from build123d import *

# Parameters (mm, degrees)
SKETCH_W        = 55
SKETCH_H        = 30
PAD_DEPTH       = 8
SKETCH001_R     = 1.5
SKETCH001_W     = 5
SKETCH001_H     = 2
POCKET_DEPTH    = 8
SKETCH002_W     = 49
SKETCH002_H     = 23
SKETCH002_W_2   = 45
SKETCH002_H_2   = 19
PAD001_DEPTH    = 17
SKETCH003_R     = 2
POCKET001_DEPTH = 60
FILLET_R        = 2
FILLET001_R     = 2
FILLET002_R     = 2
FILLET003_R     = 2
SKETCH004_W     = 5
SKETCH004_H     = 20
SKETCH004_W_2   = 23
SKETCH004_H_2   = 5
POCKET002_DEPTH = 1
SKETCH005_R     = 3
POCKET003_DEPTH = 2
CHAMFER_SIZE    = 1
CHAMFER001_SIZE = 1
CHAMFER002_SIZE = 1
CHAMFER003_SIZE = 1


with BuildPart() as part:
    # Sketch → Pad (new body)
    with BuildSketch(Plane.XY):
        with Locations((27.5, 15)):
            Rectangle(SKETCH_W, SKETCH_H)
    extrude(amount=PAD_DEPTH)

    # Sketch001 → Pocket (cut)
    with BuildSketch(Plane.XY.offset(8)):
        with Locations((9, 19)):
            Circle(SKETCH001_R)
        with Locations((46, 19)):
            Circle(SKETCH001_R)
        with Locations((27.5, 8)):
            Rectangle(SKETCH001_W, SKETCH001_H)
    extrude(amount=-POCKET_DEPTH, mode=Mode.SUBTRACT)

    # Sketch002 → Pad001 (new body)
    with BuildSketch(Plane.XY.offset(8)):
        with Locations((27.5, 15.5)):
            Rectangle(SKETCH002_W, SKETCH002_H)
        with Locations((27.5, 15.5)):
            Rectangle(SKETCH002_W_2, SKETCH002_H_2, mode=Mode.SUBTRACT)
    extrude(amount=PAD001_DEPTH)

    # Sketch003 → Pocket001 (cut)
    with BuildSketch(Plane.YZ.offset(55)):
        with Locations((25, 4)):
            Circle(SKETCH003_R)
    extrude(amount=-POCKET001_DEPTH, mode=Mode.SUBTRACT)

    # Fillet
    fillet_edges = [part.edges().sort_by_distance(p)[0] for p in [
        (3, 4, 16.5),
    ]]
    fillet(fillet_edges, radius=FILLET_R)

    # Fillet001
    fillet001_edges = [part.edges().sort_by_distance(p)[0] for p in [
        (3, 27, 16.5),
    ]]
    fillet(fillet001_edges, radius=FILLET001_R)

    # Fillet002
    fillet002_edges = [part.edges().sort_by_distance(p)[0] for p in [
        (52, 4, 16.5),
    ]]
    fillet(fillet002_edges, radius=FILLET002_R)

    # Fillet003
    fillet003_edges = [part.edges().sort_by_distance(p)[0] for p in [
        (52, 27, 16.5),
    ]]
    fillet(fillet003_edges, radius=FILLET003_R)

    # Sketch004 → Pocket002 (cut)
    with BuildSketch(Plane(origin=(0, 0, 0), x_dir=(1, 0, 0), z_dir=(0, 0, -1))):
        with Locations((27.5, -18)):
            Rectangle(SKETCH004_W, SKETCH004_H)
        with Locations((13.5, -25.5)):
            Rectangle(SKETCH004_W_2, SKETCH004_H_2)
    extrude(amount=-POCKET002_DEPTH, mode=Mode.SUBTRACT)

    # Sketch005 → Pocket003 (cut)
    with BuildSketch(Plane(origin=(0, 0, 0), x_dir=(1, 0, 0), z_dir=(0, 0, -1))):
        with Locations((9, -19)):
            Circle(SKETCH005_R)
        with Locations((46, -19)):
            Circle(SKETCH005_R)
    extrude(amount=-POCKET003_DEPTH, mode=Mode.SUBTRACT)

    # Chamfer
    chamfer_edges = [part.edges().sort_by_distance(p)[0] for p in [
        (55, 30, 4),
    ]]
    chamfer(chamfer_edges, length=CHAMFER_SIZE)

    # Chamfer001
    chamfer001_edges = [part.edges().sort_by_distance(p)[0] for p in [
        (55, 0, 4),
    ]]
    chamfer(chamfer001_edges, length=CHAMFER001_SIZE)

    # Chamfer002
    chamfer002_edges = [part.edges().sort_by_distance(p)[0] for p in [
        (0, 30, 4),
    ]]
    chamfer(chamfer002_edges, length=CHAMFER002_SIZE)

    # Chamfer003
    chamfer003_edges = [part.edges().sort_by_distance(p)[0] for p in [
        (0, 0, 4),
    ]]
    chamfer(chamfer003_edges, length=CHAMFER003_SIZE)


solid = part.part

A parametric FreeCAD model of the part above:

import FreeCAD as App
import Part
import Sketcher


def edges_at(feature, points):
    """Names of the edges that pass closest to the given points."""
    edges = feature.Shape.Edges
    near = lambda p: min(range(len(edges)), key=lambda i: edges[i].distToShape(Part.Vertex(*p))[0])
    return sorted({f"Edge{near(p) + 1}" for p in points})

doc = App.newDocument("Part")
params = doc.addObject("Spreadsheet::Sheet", "Params")
for row, (alias, value) in enumerate([
    ("sketch1_width", "55 mm"),
    ("sketch1_height", "30 mm"),
    ("pad1_length", "8 mm"),
    ("sketch2_diameter", "3 mm"),
    ("sketch2_width", "5 mm"),
    ("sketch2_height", "2 mm"),
    ("pocket1_length", "8 mm"),
    ("sketch3_width", "49 mm"),
    ("sketch3_width2", "45 mm"),
    ("sketch3_height", "23 mm"),
    ("sketch3_height2", "19 mm"),
    ("pad2_length", "17 mm"),
    ("sketch4_diameter", "4 mm"),
    ("pocket2_length", "60 mm"),
    ("fillet_radius", "2 mm"),
    ("fillet2_radius", "2 mm"),
    ("fillet3_radius", "2 mm"),
    ("fillet4_radius", "2 mm"),
    ("sketch5_width", "23 mm"),
    ("sketch5_width2", "28 mm"),
    ("sketch5_height", "15 mm"),
    ("pocket3_length", "1 mm"),
    ("sketch6_diameter", "6 mm"),
    ("pocket4_length", "2 mm"),
    ("chamfer_size", "1 mm"),
    ("chamfer2_size", "1 mm"),
    ("chamfer3_size", "1 mm"),
    ("chamfer4_size", "1 mm"),
], start=1):
    params.set(f"A{row}", alias)
    params.set(f"B{row}", "=" + value)
    params.setAlias(f"B{row}", alias)

body = doc.addObject("PartDesign::Body", "Body")

# Sketch on XY plane
sketch1 = body.newObject("Sketcher::SketchObject", "Sketch")
sketch1.AttachmentSupport = (doc.getObject("XY_Plane"), [""])
sketch1.MapMode = "FlatFace"
sketch1.addGeometry([
    Part.LineSegment(App.Vector(0, 30, 0), App.Vector(0, 0, 0)),
    Part.LineSegment(App.Vector(0, 0, 0), App.Vector(55, 0, 0)),
    Part.LineSegment(App.Vector(55, 0, 0), App.Vector(55, 30, 0)),
    Part.LineSegment(App.Vector(55, 30, 0), App.Vector(0, 30, 0)),
], False)
sketch1.addConstraint([
    Sketcher.Constraint("Coincident", 0, 2, 1, 1),
    Sketcher.Constraint("Coincident", 1, 2, 2, 1),
    Sketcher.Constraint("Coincident", 2, 2, 3, 1),
    Sketcher.Constraint("Coincident", 3, 2, 0, 1),
    Sketcher.Constraint("Vertical", 0),
    Sketcher.Constraint("Horizontal", 1),
    Sketcher.Constraint("Vertical", 2),
    Sketcher.Constraint("Horizontal", 3),
    Sketcher.Constraint("Coincident", 0, 2, -1, 1),
    Sketcher.Constraint("DistanceX", 1, 1, 1, 2, 55.0),
    Sketcher.Constraint("DistanceY", 0, 2, 0, 1, 30.0),
])
sketch1.setExpression("Constraints[9]", "Params.sketch1_width")
sketch1.setExpression("Constraints[10]", "Params.sketch1_height")
pad1 = body.newObject("PartDesign::Pad", "Pad")
pad1.Profile = sketch1
pad1.setExpression("Length", "Params.pad1_length")

# Sketch on XY plane
sketch2 = body.newObject("Sketcher::SketchObject", "Sketch001")
sketch2.AttachmentSupport = (doc.getObject("XY_Plane"), [""])
sketch2.MapMode = "FlatFace"
sketch2.AttachmentOffset = App.Placement(App.Vector(0, 0, 8), App.Rotation())
sketch2.addGeometry([
    Part.Circle(App.Vector(9, 19, 0), App.Vector(0, 0, 1), 1.5),  # 0
    Part.Circle(App.Vector(46, 19, 0), App.Vector(0, 0, 1), 1.5),  # 1
    Part.LineSegment(App.Vector(25, 9, 0), App.Vector(25, 7, 0)),  # 2
    Part.LineSegment(App.Vector(25, 7, 0), App.Vector(30, 7, 0)),  # 3
    Part.LineSegment(App.Vector(30, 7, 0), App.Vector(30, 9, 0)),  # 4
    Part.LineSegment(App.Vector(30, 9, 0), App.Vector(25, 9, 0)),  # 5
], False)
sketch2.addConstraint([
    Sketcher.Constraint("Coincident", 2, 2, 3, 1),
    Sketcher.Constraint("Coincident", 3, 2, 4, 1),
    Sketcher.Constraint("Coincident", 4, 2, 5, 1),
    Sketcher.Constraint("Coincident", 5, 2, 2, 1),
    Sketcher.Constraint("Vertical", 2),
    Sketcher.Constraint("Horizontal", 3),
    Sketcher.Constraint("Vertical", 4),
    Sketcher.Constraint("Horizontal", 5),
    Sketcher.Constraint("Equal", 0, 1),
    Sketcher.Constraint("Horizontal", 0, 3, 1, 3),
    Sketcher.Constraint("Diameter", 0, 3.0),
    Sketcher.Constraint("DistanceX", 3, 1, 3, 2, 5.0),
    Sketcher.Constraint("DistanceY", 2, 2, 2, 1, 2.0),
    Sketcher.Constraint("DistanceX", -1, 1, 0, 3, 9.0),
    Sketcher.Constraint("DistanceY", -1, 1, 0, 3, 19.0),
    Sketcher.Constraint("DistanceX", -1, 1, 1, 3, 46.0),
    Sketcher.Constraint("DistanceX", -1, 1, 2, 2, 25.0),
    Sketcher.Constraint("DistanceY", -1, 1, 2, 2, 7.0),
])
sketch2.setExpression("Constraints[10]", "Params.sketch2_diameter")
sketch2.setExpression("Constraints[11]", "Params.sketch2_width")
sketch2.setExpression("Constraints[12]", "Params.sketch2_height")
pocket1 = body.newObject("PartDesign::Pocket", "Pocket")
pocket1.Profile = sketch2
pocket1.setExpression("Length", "Params.pocket1_length")

# Sketch on XY plane
sketch3 = body.newObject("Sketcher::SketchObject", "Sketch002")
sketch3.AttachmentSupport = (doc.getObject("XY_Plane"), [""])
sketch3.MapMode = "FlatFace"
sketch3.AttachmentOffset = App.Placement(App.Vector(0, 0, 8), App.Rotation())
sketch3.addGeometry([
    Part.LineSegment(App.Vector(3, 27, 0), App.Vector(3, 4, 0)),  # 0
    Part.LineSegment(App.Vector(3, 4, 0), App.Vector(52, 4, 0)),  # 1
    Part.LineSegment(App.Vector(52, 4, 0), App.Vector(52, 27, 0)),  # 2
    Part.LineSegment(App.Vector(52, 27, 0), App.Vector(3, 27, 0)),  # 3
    Part.LineSegment(App.Vector(50, 6, 0), App.Vector(5, 6, 0)),  # 4
    Part.LineSegment(App.Vector(5, 6, 0), App.Vector(5, 25, 0)),  # 5
    Part.LineSegment(App.Vector(5, 25, 0), App.Vector(50, 25, 0)),  # 6
    Part.LineSegment(App.Vector(50, 25, 0), App.Vector(50, 6, 0)),  # 7
], False)
sketch3.addConstraint([
    Sketcher.Constraint("Coincident", 0, 2, 1, 1),
    Sketcher.Constraint("Coincident", 1, 2, 2, 1),
    Sketcher.Constraint("Coincident", 2, 2, 3, 1),
    Sketcher.Constraint("Coincident", 3, 2, 0, 1),
    Sketcher.Constraint("Coincident", 4, 2, 5, 1),
    Sketcher.Constraint("Coincident", 5, 2, 6, 1),
    Sketcher.Constraint("Coincident", 6, 2, 7, 1),
    Sketcher.Constraint("Coincident", 7, 2, 4, 1),
    Sketcher.Constraint("Vertical", 0),
    Sketcher.Constraint("Horizontal", 1),
    Sketcher.Constraint("Vertical", 2),
    Sketcher.Constraint("Horizontal", 3),
    Sketcher.Constraint("Horizontal", 4),
    Sketcher.Constraint("Vertical", 5),
    Sketcher.Constraint("Horizontal", 6),
    Sketcher.Constraint("Vertical", 7),
    Sketcher.Constraint("DistanceX", 1, 1, 1, 2, 49.0),
    Sketcher.Constraint("DistanceX", 4, 2, 4, 1, 45.0),
    Sketcher.Constraint("DistanceY", 0, 2, 0, 1, 23.0),
    Sketcher.Constraint("DistanceY", 5, 1, 5, 2, 19.0),
    Sketcher.Constraint("DistanceX", -1, 1, 0, 2, 3.0),
    Sketcher.Constraint("DistanceY", -1, 1, 0, 2, 4.0),
    Sketcher.Constraint("DistanceX", -1, 1, 4, 2, 5.0),
    Sketcher.Constraint("DistanceY", -1, 1, 4, 2, 6.0),
])
sketch3.setExpression("Constraints[16]", "Params.sketch3_width")
sketch3.setExpression("Constraints[17]", "Params.sketch3_width2")
sketch3.setExpression("Constraints[18]", "Params.sketch3_height")
sketch3.setExpression("Constraints[19]", "Params.sketch3_height2")
pad2 = body.newObject("PartDesign::Pad", "Pad001")
pad2.Profile = sketch3
pad2.setExpression("Length", "Params.pad2_length")

# Sketch on YZ plane
sketch4 = body.newObject("Sketcher::SketchObject", "Sketch003")
sketch4.AttachmentSupport = (doc.getObject("YZ_Plane"), [""])
sketch4.MapMode = "FlatFace"
sketch4.AttachmentOffset = App.Placement(App.Vector(0, 0, 55), App.Rotation())
sketch4.addGeometry(Part.Circle(App.Vector(25, 4, 0), App.Vector(0, 0, 1), 2), False)
sketch4.addConstraint([
    Sketcher.Constraint("Diameter", 0, 4.0),
    Sketcher.Constraint("DistanceX", -1, 1, 0, 3, 25.0),
    Sketcher.Constraint("DistanceY", -1, 1, 0, 3, 4.0),
])
sketch4.setExpression("Constraints[0]", "Params.sketch4_diameter")
pocket2 = body.newObject("PartDesign::Pocket", "Pocket001")
pocket2.Profile = sketch4
pocket2.setExpression("Length", "Params.pocket2_length")
doc.recompute()

fillet = body.newObject("PartDesign::Fillet", "Fillet")
fillet.Base = (pocket2, edges_at(pocket2, [(3, 4, 16.5)]))
fillet.setExpression("Radius", "Params.fillet_radius")
doc.recompute()

fillet2 = body.newObject("PartDesign::Fillet", "Fillet001")
fillet2.Base = (fillet, edges_at(fillet, [(3, 27, 16.5)]))
fillet2.setExpression("Radius", "Params.fillet2_radius")
doc.recompute()

fillet3 = body.newObject("PartDesign::Fillet", "Fillet002")
fillet3.Base = (fillet2, edges_at(fillet2, [(52, 4, 16.5)]))
fillet3.setExpression("Radius", "Params.fillet3_radius")
doc.recompute()

fillet4 = body.newObject("PartDesign::Fillet", "Fillet003")
fillet4.Base = (fillet3, edges_at(fillet3, [(52, 27, 16.5)]))
fillet4.setExpression("Radius", "Params.fillet4_radius")

# Sketch on XY plane
sketch5 = body.newObject("Sketcher::SketchObject", "Sketch004")
sketch5.AttachmentSupport = (doc.getObject("XY_Plane"), [""])
sketch5.MapMode = "FlatFace"
sketch5.addGeometry([
    Part.LineSegment(App.Vector(25, 8, 0), App.Vector(25, 23, 0)),  # 0
    Part.LineSegment(App.Vector(25, 23, 0), App.Vector(2, 23, 0)),  # 1
    Part.LineSegment(App.Vector(2, 23, 0), App.Vector(2, 28, 0)),  # 2
    Part.LineSegment(App.Vector(2, 28, 0), App.Vector(30, 28, 0)),  # 3
    Part.LineSegment(App.Vector(30, 28, 0), App.Vector(30, 8, 0)),  # 4
    Part.LineSegment(App.Vector(30, 8, 0), App.Vector(25, 8, 0)),  # 5
], False)
sketch5.addConstraint([
    Sketcher.Constraint("Coincident", 0, 2, 1, 1),
    Sketcher.Constraint("Coincident", 1, 2, 2, 1),
    Sketcher.Constraint("Coincident", 2, 2, 3, 1),
    Sketcher.Constraint("Coincident", 3, 2, 4, 1),
    Sketcher.Constraint("Coincident", 4, 2, 5, 1),
    Sketcher.Constraint("Coincident", 5, 2, 0, 1),
    Sketcher.Constraint("Vertical", 0),
    Sketcher.Constraint("Horizontal", 1),
    Sketcher.Constraint("Vertical", 2),
    Sketcher.Constraint("Horizontal", 3),
    Sketcher.Constraint("Vertical", 4),
    Sketcher.Constraint("Horizontal", 5),
    Sketcher.Constraint("Equal", 5, 2),
    Sketcher.Constraint("DistanceX", 1, 2, 1, 1, 23.0),
    Sketcher.Constraint("DistanceX", 3, 1, 3, 2, 28.0),
    Sketcher.Constraint("DistanceY", 0, 1, 0, 2, 15.0),
    Sketcher.Constraint("DistanceX", -1, 1, 0, 2, 25.0),
    Sketcher.Constraint("DistanceY", -1, 1, 0, 2, 23.0),
])
sketch5.setExpression("Constraints[13]", "Params.sketch5_width")
sketch5.setExpression("Constraints[14]", "Params.sketch5_width2")
sketch5.setExpression("Constraints[15]", "Params.sketch5_height")
pocket3 = body.newObject("PartDesign::Pocket", "Pocket002")
pocket3.Profile = sketch5
pocket3.setExpression("Length", "Params.pocket3_length")
pocket3.Reversed = True

# Sketch on XY plane
sketch6 = body.newObject("Sketcher::SketchObject", "Sketch005")
sketch6.AttachmentSupport = (doc.getObject("XY_Plane"), [""])
sketch6.MapMode = "FlatFace"
sketch6.addGeometry([
    Part.Circle(App.Vector(9, 19, 0), App.Vector(0, 0, 1), 3),
    Part.Circle(App.Vector(46, 19, 0), App.Vector(0, 0, 1), 3),
], False)
sketch6.addConstraint([
    Sketcher.Constraint("Equal", 0, 1),
    Sketcher.Constraint("Horizontal", 0, 3, 1, 3),
    Sketcher.Constraint("Diameter", 0, 6.0),
    Sketcher.Constraint("DistanceX", -1, 1, 0, 3, 9.0),
    Sketcher.Constraint("DistanceY", -1, 1, 0, 3, 19.0),
    Sketcher.Constraint("DistanceX", -1, 1, 1, 3, 46.0),
])
sketch6.setExpression("Constraints[2]", "Params.sketch6_diameter")
pocket4 = body.newObject("PartDesign::Pocket", "Pocket003")
pocket4.Profile = sketch6
pocket4.setExpression("Length", "Params.pocket4_length")
pocket4.Reversed = True
doc.recompute()

chamfer = body.newObject("PartDesign::Chamfer", "Chamfer")
chamfer.Base = (pocket4, edges_at(pocket4, [(55, 30, 4)]))
chamfer.setExpression("Size", "Params.chamfer_size")
doc.recompute()

chamfer2 = body.newObject("PartDesign::Chamfer", "Chamfer001")
chamfer2.Base = (chamfer, edges_at(chamfer, [(55, 0, 4)]))
chamfer2.setExpression("Size", "Params.chamfer2_size")
doc.recompute()

chamfer3 = body.newObject("PartDesign::Chamfer", "Chamfer002")
chamfer3.Base = (chamfer2, edges_at(chamfer2, [(0, 30, 4)]))
chamfer3.setExpression("Size", "Params.chamfer3_size")
doc.recompute()

chamfer4 = body.newObject("PartDesign::Chamfer", "Chamfer003")
chamfer4.Base = (chamfer3, edges_at(chamfer3, [(0, 0, 4)]))
chamfer4.setExpression("Size", "Params.chamfer4_size")

doc.recompute()
